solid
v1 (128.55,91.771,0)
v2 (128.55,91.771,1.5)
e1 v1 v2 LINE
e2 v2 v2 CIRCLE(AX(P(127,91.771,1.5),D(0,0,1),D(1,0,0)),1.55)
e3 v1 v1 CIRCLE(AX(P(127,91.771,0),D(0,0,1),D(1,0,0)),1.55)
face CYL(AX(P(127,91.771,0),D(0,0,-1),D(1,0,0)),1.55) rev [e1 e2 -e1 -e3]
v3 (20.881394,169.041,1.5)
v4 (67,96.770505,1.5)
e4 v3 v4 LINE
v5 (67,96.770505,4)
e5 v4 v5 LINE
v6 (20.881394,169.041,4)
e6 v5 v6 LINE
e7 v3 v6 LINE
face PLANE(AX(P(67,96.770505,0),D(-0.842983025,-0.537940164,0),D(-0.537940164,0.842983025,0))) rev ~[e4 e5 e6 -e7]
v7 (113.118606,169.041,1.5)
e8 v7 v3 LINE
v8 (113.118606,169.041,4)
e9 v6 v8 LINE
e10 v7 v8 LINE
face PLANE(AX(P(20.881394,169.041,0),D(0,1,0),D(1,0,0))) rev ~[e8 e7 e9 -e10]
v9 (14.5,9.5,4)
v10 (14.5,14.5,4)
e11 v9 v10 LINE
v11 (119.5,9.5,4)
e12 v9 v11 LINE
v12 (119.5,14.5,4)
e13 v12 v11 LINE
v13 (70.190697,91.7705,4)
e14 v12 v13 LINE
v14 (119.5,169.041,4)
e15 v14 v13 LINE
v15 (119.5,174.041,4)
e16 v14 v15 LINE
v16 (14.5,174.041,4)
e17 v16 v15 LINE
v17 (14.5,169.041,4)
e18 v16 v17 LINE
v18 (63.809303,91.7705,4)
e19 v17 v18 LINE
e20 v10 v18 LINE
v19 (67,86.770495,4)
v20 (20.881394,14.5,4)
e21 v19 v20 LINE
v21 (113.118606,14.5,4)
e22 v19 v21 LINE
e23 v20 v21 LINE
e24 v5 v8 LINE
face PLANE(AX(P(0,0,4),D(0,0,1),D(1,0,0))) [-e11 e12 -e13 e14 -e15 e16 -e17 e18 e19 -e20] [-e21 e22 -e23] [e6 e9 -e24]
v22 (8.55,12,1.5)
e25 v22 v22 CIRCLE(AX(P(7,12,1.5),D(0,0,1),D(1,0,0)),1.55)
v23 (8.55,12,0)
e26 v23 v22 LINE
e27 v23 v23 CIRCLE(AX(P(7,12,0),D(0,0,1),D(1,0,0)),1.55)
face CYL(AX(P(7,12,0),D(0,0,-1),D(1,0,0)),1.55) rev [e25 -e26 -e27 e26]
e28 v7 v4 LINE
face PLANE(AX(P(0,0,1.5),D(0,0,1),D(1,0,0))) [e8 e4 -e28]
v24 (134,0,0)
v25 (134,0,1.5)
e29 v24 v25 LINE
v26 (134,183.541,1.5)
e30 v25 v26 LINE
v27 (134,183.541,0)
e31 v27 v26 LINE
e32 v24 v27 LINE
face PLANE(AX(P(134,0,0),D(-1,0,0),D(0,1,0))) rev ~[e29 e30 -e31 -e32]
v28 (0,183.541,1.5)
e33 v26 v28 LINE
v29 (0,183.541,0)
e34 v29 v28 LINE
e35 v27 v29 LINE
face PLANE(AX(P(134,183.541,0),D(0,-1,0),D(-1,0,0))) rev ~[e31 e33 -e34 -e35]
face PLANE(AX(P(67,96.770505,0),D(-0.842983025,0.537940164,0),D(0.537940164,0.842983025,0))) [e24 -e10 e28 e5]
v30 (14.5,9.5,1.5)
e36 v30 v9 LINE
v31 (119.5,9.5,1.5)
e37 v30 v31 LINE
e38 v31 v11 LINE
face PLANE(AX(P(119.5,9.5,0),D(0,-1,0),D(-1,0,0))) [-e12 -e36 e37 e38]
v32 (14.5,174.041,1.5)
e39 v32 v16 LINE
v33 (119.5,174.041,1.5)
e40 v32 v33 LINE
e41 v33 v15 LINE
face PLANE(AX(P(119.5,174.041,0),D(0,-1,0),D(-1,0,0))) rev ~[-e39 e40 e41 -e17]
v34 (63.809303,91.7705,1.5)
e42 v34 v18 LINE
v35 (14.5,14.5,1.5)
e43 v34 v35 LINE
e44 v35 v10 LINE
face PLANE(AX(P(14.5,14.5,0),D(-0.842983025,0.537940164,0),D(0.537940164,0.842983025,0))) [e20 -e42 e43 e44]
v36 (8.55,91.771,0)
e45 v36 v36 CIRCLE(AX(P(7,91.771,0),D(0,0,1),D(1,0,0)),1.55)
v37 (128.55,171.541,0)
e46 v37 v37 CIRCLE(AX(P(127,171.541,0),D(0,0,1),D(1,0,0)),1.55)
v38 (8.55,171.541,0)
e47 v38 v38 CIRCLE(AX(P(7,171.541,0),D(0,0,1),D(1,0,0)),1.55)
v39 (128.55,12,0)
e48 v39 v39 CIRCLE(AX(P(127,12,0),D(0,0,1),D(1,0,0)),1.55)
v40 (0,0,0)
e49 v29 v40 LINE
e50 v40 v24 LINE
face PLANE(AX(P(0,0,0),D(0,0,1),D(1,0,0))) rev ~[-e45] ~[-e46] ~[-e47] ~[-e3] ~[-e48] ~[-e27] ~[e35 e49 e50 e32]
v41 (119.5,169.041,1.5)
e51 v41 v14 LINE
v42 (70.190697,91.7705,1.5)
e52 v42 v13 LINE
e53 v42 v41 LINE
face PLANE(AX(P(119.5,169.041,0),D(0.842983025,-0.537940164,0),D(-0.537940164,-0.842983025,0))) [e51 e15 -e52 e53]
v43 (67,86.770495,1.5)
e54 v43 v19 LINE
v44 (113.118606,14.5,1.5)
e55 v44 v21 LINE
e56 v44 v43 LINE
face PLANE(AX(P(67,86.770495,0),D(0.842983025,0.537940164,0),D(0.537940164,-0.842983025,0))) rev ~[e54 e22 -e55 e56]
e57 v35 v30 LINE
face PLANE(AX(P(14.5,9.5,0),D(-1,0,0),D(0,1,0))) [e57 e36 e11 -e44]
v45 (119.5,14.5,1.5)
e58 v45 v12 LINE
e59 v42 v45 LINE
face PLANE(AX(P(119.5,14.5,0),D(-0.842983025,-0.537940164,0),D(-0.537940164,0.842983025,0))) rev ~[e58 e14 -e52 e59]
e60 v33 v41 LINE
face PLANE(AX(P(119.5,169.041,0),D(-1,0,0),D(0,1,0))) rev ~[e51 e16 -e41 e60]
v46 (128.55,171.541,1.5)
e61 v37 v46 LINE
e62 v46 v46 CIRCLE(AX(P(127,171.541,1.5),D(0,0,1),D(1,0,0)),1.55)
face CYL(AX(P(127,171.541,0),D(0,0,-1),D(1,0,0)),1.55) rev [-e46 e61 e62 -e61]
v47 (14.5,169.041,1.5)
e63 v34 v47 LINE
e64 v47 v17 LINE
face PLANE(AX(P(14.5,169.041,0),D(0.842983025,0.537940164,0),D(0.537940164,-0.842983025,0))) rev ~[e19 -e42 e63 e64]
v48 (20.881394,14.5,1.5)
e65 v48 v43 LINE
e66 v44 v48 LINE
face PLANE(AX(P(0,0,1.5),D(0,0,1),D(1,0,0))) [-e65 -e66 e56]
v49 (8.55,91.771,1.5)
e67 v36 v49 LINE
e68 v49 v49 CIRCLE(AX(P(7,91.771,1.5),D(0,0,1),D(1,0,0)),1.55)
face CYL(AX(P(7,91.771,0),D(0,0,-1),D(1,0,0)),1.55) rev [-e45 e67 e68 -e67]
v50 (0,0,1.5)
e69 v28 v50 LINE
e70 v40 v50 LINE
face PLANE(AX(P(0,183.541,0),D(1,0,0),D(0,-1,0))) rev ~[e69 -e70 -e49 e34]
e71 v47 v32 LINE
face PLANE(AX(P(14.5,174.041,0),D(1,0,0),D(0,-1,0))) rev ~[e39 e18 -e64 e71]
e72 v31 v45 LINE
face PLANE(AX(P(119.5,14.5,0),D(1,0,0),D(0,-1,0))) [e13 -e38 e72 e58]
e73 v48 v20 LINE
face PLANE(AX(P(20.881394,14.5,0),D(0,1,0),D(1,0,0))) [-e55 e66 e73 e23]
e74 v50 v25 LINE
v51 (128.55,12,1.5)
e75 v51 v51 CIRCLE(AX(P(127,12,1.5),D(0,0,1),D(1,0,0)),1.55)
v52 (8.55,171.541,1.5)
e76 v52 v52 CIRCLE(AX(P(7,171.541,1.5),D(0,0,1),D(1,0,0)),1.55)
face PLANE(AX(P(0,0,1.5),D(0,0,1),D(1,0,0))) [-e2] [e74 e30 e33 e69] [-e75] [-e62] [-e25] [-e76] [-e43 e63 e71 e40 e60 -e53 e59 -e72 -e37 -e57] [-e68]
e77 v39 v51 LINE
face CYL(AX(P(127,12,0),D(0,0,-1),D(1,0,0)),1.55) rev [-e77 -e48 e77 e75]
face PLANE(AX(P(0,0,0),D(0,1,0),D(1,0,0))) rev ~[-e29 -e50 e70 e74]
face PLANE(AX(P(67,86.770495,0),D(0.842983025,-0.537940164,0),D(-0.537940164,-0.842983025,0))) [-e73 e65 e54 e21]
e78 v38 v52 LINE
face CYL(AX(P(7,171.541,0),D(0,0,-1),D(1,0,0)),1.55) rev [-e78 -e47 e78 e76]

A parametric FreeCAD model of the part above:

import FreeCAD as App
import Part
import Sketcher
Q = App.Units.Quantity


def add_polygon(sketch, points):
    """Adds a closed chain of lines whose ends are joined by coincident constraints."""
    first, n = sketch.GeometryCount, len(points)
    for a, b in zip(points, points[1:] + points[:1]):
        sketch.addGeometry(Part.LineSegment(App.Vector(*a, 0), App.Vector(*b, 0)), False)
    for i in range(n):
        sketch.addConstraint(Sketcher.Constraint("Coincident", first + i, 2, first + (i + 1) % n, 1))

doc = App.newDocument("Part")
body = doc.addObject("PartDesign::Body", "Body")

# Sketch on XY plane
sketch1 = body.newObject("Sketcher::SketchObject", "Sketch")
sketch1.AttachmentSupport = (doc.getObject("XY_Plane"), [""])
sketch1.MapMode = "FlatFace"
add_polygon(sketch1, [(0, 183.5), (0, 0), (134, 0), (134, 183.5)])  # lines 0-3
sketch1.addGeometry(Part.Circle(App.Vector(7, 12, 0), App.Vector(0, 0, 1), 1.6), False)  # 4
sketch1.addGeometry(Part.Circle(App.Vector(127, 12, 0), App.Vector(0, 0, 1), 1.6), False)  # 5
sketch1.addGeometry(Part.Circle(App.Vector(7, 91.8, 0), App.Vector(0, 0, 1), 1.6), False)  # 6
sketch1.addGeometry(Part.Circle(App.Vector(7, 171.5, 0), App.Vector(0, 0, 1), 1.6), False)  # 7
sketch1.addGeometry(Part.Circle(App.Vector(127, 91.8, 0), App.Vector(0, 0, 1), 1.6), False)  # 8
sketch1.addGeometry(Part.Circle(App.Vector(127, 171.5, 0), App.Vector(0, 0, 1), 1.6), False)  # 9
sketch1.addConstraint([
    Sketcher.Constraint("Vertical", 0),
    Sketcher.Constraint("Horizontal", 1),
    Sketcher.Constraint("Vertical", 2),
    Sketcher.Constraint("Horizontal", 3),
    Sketcher.Constraint("Coincident", 0, 2, -1, 1),
    Sketcher.Constraint("Equal", 4, 5),
    Sketcher.Constraint("Equal", 5, 6),
    Sketcher.Constraint("Equal", 6, 7),
    Sketcher.Constraint("Equal", 7, 8),
    Sketcher.Constraint("Equal", 8, 9),
    Sketcher.Constraint("Horizontal", 4, 3, 5, 3),
    Sketcher.Constraint("Horizontal", 6, 3, 8, 3),
    Sketcher.Constraint("Horizontal", 7, 3, 9, 3),
    Sketcher.Constraint("Vertical", 4, 3, 6, 3),
    Sketcher.Constraint("Vertical", 6, 3, 7, 3),
    Sketcher.Constraint("Vertical", 5, 3, 8, 3),
    Sketcher.Constraint("Vertical", 8, 3, 9, 3),
    Sketcher.Constraint("Diameter", 4, Q("3.1 mm")),
    Sketcher.Constraint("DistanceX", 1, 1, 1, 2, Q("134 mm")),
    Sketcher.Constraint("DistanceX", -1, 1, 4, 3, Q("7 mm")),
    Sketcher.Constraint("DistanceY", -1, 1, 4, 3, Q("12 mm")),
    Sketcher.Constraint("DistanceX", 5, 3, 1, 2, Q("7 mm")),
    Sketcher.Constraint("DistanceY", 9, 3, 2, 2, Q("12 mm")),
    Sketcher.Constraint("DistanceY", 0, 2, 0, 1, Q("183.541 mm")),
    Sketcher.Constraint("DistanceY", 8, 3, 2, 2, Q("91.77 mm")),
])
pad1 = body.newObject("PartDesign::Pad", "Pad")
pad1.Profile = sketch1
pad1.Length = 1.5

# Sketch on XY plane
sketch2 = body.newObject("Sketcher::SketchObject", "Sketch001")
sketch2.AttachmentSupport = (doc.getObject("XY_Plane"), [""])
sketch2.MapMode = "FlatFace"
add_polygon(sketch2, [(120, 174), (14, 174), (14, 169), (64, 92), (14, 14), (14, 10), (120, 10), (120, 14), (70, 92), (120, 169)])  # lines 0-9
add_polygon(sketch2, [(113, 169), (67, 97), (21, 169)])  # lines 10-12
add_polygon(sketch2, [(67, 87), (113, 14), (21, 14)])  # lines 13-15
sketch2.addConstraint([
    Sketcher.Constraint("Horizontal", 0),
    Sketcher.Constraint("Vertical", 1),
    Sketcher.Constraint("Vertical", 4),
    Sketcher.Constraint("Horizontal", 5),
    Sketcher.Constraint("Vertical", 6),
    Sketcher.Constraint("Vertical", 9),
    Sketcher.Constraint("Horizontal", 12),
    Sketcher.Constraint("Horizontal", 14),
    Sketcher.Constraint("Parallel", 2, 7),
    Sketcher.Constraint("Parallel", 3, 8),
    Sketcher.Constraint("Parallel", 8, 10),
    Sketcher.Constraint("Parallel", 7, 11),
    Sketcher.Constraint("Parallel", 11, 13),
    Sketcher.Constraint("Parallel", 10, 15),
    Sketcher.Constraint("Horizontal", 3, 2, 6, 2),
    Sketcher.Constraint("Horizontal", 2, 2, 7, 2),
    Sketcher.Constraint("Horizontal", 1, 2, 8, 2),
    Sketcher.Constraint("Horizontal", 8, 2, 11, 2),
    Sketcher.Constraint("Horizontal", 6, 2, 13, 2),
    Sketcher.Constraint("Vertical", 1, 2, 3, 2),
    Sketcher.Constraint("Vertical", 6, 2, 8, 2),
    Sketcher.Constraint("Vertical", 12, 2, 13, 2),
    Sketcher.Constraint("Vertical", 11, 2, 14, 2),
    Sketcher.Constraint("Equal", 1, 4),
    Sketcher.Constraint("DistanceX", 0, 2, 0, 1, Q("105 mm")),
    Sketcher.Constraint("DistanceY", 1, 2, 1, 1, Q("5 mm")),
    Sketcher.Constraint("DistanceY", 2, 2, 10, 2, Q("5 mm")),
    Sketcher.Constraint("DistanceX", -1, 1, 10, 2, Q("67 mm")),
    Sketcher.Constraint("DistanceY", -1, 1, 2, 2, Q("91.7705 mm")),
    Sketcher.Constraint("DistanceX", -1, 1, 0, 2, Q("14.5 mm")),
    Sketcher.Constraint("DistanceY", -1, 1, 3, 2, Q("14.5 mm")),
    Sketcher.Constraint("DistanceX", 12, 1, 12, 2, Q("92.2372 mm")),
])
pad2 = body.newObject("PartDesign::Pad", "Pad001")
pad2.Profile = sketch2
pad2.Length = 4

doc.recompute()
